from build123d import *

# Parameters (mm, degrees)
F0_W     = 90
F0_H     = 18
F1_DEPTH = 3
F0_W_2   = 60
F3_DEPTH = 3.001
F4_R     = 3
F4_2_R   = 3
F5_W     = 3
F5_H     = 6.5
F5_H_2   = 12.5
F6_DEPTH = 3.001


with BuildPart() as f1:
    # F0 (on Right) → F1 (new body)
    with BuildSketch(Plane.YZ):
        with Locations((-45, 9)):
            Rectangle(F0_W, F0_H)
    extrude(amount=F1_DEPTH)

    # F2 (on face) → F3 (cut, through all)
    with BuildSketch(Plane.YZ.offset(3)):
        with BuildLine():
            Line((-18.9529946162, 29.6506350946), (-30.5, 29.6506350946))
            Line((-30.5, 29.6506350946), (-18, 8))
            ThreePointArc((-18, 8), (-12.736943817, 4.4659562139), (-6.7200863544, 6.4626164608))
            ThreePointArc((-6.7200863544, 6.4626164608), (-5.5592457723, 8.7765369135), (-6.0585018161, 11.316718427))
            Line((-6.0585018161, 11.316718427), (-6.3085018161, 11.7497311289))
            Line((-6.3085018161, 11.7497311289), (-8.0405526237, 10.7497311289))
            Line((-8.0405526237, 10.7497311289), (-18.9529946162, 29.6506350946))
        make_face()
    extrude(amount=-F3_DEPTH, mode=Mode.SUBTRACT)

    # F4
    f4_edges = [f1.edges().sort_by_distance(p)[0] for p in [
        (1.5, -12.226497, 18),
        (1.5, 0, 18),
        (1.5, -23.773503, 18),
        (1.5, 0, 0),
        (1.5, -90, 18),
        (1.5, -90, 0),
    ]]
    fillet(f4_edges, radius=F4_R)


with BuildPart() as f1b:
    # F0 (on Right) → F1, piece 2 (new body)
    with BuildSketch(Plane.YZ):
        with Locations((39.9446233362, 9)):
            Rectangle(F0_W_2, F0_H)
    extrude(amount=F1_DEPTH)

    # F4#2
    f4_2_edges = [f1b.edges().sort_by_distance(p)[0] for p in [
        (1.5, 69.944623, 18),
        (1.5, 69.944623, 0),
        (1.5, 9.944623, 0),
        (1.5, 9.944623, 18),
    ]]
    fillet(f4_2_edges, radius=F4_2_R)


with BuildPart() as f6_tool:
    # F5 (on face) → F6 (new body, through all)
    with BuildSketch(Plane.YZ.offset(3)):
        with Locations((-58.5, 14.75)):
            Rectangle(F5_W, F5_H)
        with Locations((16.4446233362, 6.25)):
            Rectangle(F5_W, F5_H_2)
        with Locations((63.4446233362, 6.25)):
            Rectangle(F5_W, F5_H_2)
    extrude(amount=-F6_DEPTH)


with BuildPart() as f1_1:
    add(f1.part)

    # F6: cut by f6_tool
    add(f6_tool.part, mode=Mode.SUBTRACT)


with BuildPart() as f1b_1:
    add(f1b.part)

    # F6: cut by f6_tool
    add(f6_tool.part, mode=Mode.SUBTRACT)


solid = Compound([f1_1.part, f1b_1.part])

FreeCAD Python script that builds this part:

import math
import FreeCAD as App
import Part
import Sketcher

V = App.Vector
Q = App.Units.Quantity


def edges_at(feature, points):
    """Names of the edges that pass closest to the given points."""
    edges = feature.Shape.Edges
    near = lambda p: min(range(len(edges)), key=lambda i: edges[i].distToShape(Part.Vertex(*p))[0])
    return sorted({f"Edge{near(p) + 1}" for p in points})


def add_polygon(sketch, points):
    """Adds a closed chain of lines whose ends are joined by coincident constraints."""
    first, n = sketch.GeometryCount, len(points)
    for a, b in zip(points, points[1:] + points[:1]):
        sketch.addGeometry(Part.LineSegment(App.Vector(*a, 0), App.Vector(*b, 0)), False)
    for i in range(n):
        sketch.addConstraint(Sketcher.Constraint("Coincident", first + i, 2, first + (i + 1) % n, 1))

doc = App.newDocument("Part")
body = doc.addObject("PartDesign::Body", "Body")

# Sketch on YZ plane
sketch1 = doc.addObject("Sketcher::SketchObject", "Sketch")
body.addObject(sketch1)
sketch1.AttachmentSupport = (doc.YZ_Plane, [""])
sketch1.MapMode = "FlatFace"
add_polygon(sketch1, [(-90, 18), (-90, 0), (0, 0), (0, 18)])  # lines 0-3
sketch1.addConstraint(Sketcher.Constraint("Vertical", 0))
sketch1.addConstraint(Sketcher.Constraint("Horizontal", 1))
sketch1.addConstraint(Sketcher.Constraint("Vertical", 2))
sketch1.addConstraint(Sketcher.Constraint("Horizontal", 3))
sketch1.addConstraint(Sketcher.Constraint("Coincident", 1, 2, -1, 1))
sketch1.addConstraint(Sketcher.Constraint("DistanceX", 1, 1, 1, 2, Q("90 mm")))
sketch1.addConstraint(Sketcher.Constraint("DistanceY", 0, 2, 0, 1, Q("18 mm")))
pad1 = doc.addObject("PartDesign::Pad", "Pad")
body.addObject(pad1)
pad1.Profile = sketch1
pad1.Length = 3

# Sketch on YZ plane
sketch2 = doc.addObject("Sketcher::SketchObject", "Sketch001")
body.addObject(sketch2)
sketch2.AttachmentSupport = (doc.YZ_Plane, [""])
sketch2.MapMode = "FlatFace"
sketch2.AttachmentOffset = App.Placement(V(0, 0, 3), App.Rotation())
sketch2.addGeometry(Part.LineSegment(V(-19, 29.7, 0), V(-30.5, 29.7, 0)), False)
sketch2.addGeometry(Part.LineSegment(V(-30.5, 29.7, 0), V(-18, 8, 0)), False)
sketch2.addGeometry(Part.ArcOfCircle(Part.Circle(V(-11.8, 11.6, 0), V(0, 0, 1), 7.2), math.radians(-150), math.radians(-46)), False)
sketch2.addGeometry(Part.ArcOfCircle(Part.Circle(V(-9.5, 9.3, 0), V(0, 0, 1), 4), math.radians(-46), math.radians(30)), False)
sketch2.addGeometry(Part.LineSegment(V(-6.1, 11.3, 0), V(-6.3, 11.7, 0)), False)
sketch2.addGeometry(Part.LineSegment(V(-6.3, 11.7, 0), V(-8, 10.7, 0)), False)
sketch2.addGeometry(Part.LineSegment(V(-8, 10.7, 0), V(-19, 29.7, 0)), False)
sketch2.addConstraint(Sketcher.Constraint("Coincident", 0, 2, 1, 1))
sketch2.addConstraint(Sketcher.Constraint("Tangent", 1, 2, 2, 1))
sketch2.addConstraint(Sketcher.Constraint("Tangent", 2, 2, 3, 1))
sketch2.addConstraint(Sketcher.Constraint("Tangent", 3, 2, 4, 1))
sketch2.addConstraint(Sketcher.Constraint("Coincident", 4, 2, 5, 1))
sketch2.addConstraint(Sketcher.Constraint("Coincident", 5, 2, 6, 1))
sketch2.addConstraint(Sketcher.Constraint("Coincident", 6, 2, 0, 1))
sketch2.addConstraint(Sketcher.Constraint("Horizontal", 0))
sketch2.addConstraint(Sketcher.Constraint("Parallel", 1, 4))
sketch2.addConstraint(Sketcher.Constraint("Perpendicular", 4, 5))
sketch2.addConstraint(Sketcher.Constraint("Perpendicular", 5, 6))
sketch2.addConstraint(Sketcher.Constraint("Radius", 3, Q("4 mm")))
sketch2.addConstraint(Sketcher.Constraint("Radius", 2, Q("7.2 mm")))
sketch2.addConstraint(Sketcher.Constraint("Angle", 1, Q("-60 deg")))
sketch2.addConstraint(Sketcher.Constraint("Distance", 1, Q("25 mm")))
sketch2.addConstraint(Sketcher.Constraint("Distance", 5, Q("2 mm")))
sketch2.addConstraint(Sketcher.Constraint("DistanceX", 1, 2, -1, 1, Q("18 mm")))
sketch2.addConstraint(Sketcher.Constraint("DistanceY", -1, 1, 1, 2, Q("8 mm")))
sketch2.addConstraint(Sketcher.Constraint("Distance", 4, Q("0.5 mm")))
sketch2.addConstraint(Sketcher.Constraint("DistanceX", 3, 2, -1, 1, Q("6.058502 mm")))
pocket1 = doc.addObject("PartDesign::Pocket", "Pocket")
body.addObject(pocket1)
pocket1.Profile = sketch2
pocket1.Type = "ThroughAll"
doc.recompute()

fillet = doc.addObject("PartDesign::Fillet", "Fillet")
body.addObject(fillet)
fillet.Base = (pocket1, edges_at(pocket1, [
    (1.5, -12.226, 18),
    (1.5, 0, 18),
    (1.5, -23.774, 18),
    (1.5, 0, 0),
    (1.5, -90, 18),
    (1.5, -90, 0),
]))
fillet.Radius = 3
body2 = doc.addObject("PartDesign::Body", "Body001")

# Sketch on YZ plane
sketch3 = doc.addObject("Sketcher::SketchObject", "Sketch002")
body2.addObject(sketch3)
sketch3.AttachmentSupport = (doc.getObject("YZ_Plane001"), [""])
sketch3.MapMode = "FlatFace"
add_polygon(sketch3, [(10, 18), (10, 0), (70, 0), (70, 18)])  # lines 0-3
sketch3.addConstraint(Sketcher.Constraint("Vertical", 0))
sketch3.addConstraint(Sketcher.Constraint("Horizontal", 1))
sketch3.addConstraint(Sketcher.Constraint("Vertical", 2))
sketch3.addConstraint(Sketcher.Constraint("Horizontal", 3))
sketch3.addConstraint(Sketcher.Constraint("PointOnObject", 0, 2, -1))
sketch3.addConstraint(Sketcher.Constraint("DistanceX", 1, 1, 1, 2, Q("60 mm")))
sketch3.addConstraint(Sketcher.Constraint("DistanceY", 0, 2, 0, 1, Q("18 mm")))
sketch3.addConstraint(Sketcher.Constraint("DistanceX", -1, 1, 0, 2, Q("9.944623 mm")))
pad2 = doc.addObject("PartDesign::Pad", "Pad001")
body2.addObject(pad2)
pad2.Profile = sketch3
pad2.Length = 3
doc.recompute()

fillet2 = doc.addObject("PartDesign::Fillet", "Fillet001")
body2.addObject(fillet2)
fillet2.Base = (pad2, edges_at(pad2, [
    (1.5, 69.945, 18),
    (1.5, 69.945, 0),
    (1.5, 9.945, 0),
    (1.5, 9.945, 18),
]))
fillet2.Radius = 3
body3 = doc.addObject("PartDesign::Body", "Body002")
body3.AllowCompound = True

# Sketch on YZ plane
sketch4 = doc.addObject("Sketcher::SketchObject", "Sketch003")
body3.addObject(sketch4)
sketch4.AttachmentSupport = (doc.getObject("YZ_Plane002"), [""])
sketch4.MapMode = "FlatFace"
sketch4.AttachmentOffset = App.Placement(V(0, 0, 3), App.Rotation())
add_polygon(sketch4, [(-60, 18), (-60, 11.5), (-57, 11.5), (-57, 18)])  # lines 0-3
add_polygon(sketch4, [(14.9, 12.5), (14.9, 0), (17.9, 0), (17.9, 12.5)])  # lines 4-7
add_polygon(sketch4, [(61.9, 12.5), (61.9, 0), (64.9, 0), (64.9, 12.5)])  # lines 8-11
sketch4.addConstraint(Sketcher.Constraint("Vertical", 0))
sketch4.addConstraint(Sketcher.Constraint("Horizontal", 1))
sketch4.addConstraint(Sketcher.Constraint("Vertical", 2))
sketch4.addConstraint(Sketcher.Constraint("Horizontal", 3))
sketch4.addConstraint(Sketcher.Constraint("Vertical", 4))
sketch4.addConstraint(Sketcher.Constraint("Horizontal", 5))
sketch4.addConstraint(Sketcher.Constraint("Vertical", 6))
sketch4.addConstraint(Sketcher.Constraint("Horizontal", 7))
sketch4.addConstraint(Sketcher.Constraint("Vertical", 8))
sketch4.addConstraint(Sketcher.Constraint("Horizontal", 9))
sketch4.addConstraint(Sketcher.Constraint("Vertical", 10))
sketch4.addConstraint(Sketcher.Constraint("Horizontal", 11))
sketch4.addConstraint(Sketcher.Constraint("PointOnObject", 4, 2, -1))
sketch4.addConstraint(Sketcher.Constraint("PointOnObject", 8, 2, -1))
sketch4.addConstraint(Sketcher.Constraint("Horizontal", 7, 2, 10, 2))
sketch4.addConstraint(Sketcher.Constraint("Equal", 3, 5))
sketch4.addConstraint(Sketcher.Constraint("Equal", 7, 9))
sketch4.addConstraint(Sketcher.Constraint("DistanceX", 1, 1, 1, 2, Q("3 mm")))
sketch4.addConstraint(Sketcher.Constraint("DistanceY", 0, 2, 0, 1, Q("6.5 mm")))
sketch4.addConstraint(Sketcher.Constraint("DistanceY", 4, 2, 4, 1, Q("12.5 mm")))
sketch4.addConstraint(Sketcher.Constraint("DistanceX", 0, 2, -1, 1, Q("60 mm")))
sketch4.addConstraint(Sketcher.Constraint("DistanceY", -1, 1, 2, 2, Q("18 mm")))
sketch4.addConstraint(Sketcher.Constraint("DistanceX", 5, 2, 8, 2, Q("44 mm")))
sketch4.addConstraint(Sketcher.Constraint("DistanceX", -1, 1, 4, 2, Q("14.944623 mm")))
pad3 = doc.addObject("PartDesign::Pad", "Pad002")
body3.addObject(pad3)
pad3.Profile = sketch4
pad3.Length = 3.001
pad3.Reversed = True
doc.recompute()

body4 = doc.addObject("PartDesign::Body", "Body003")
body4.BaseFeature = body3
boolean = doc.addObject("PartDesign::Boolean", "Boolean")
body.addObject(boolean)
boolean.Type = "Cut"
boolean.addObjects([body4])
doc.recompute()

boolean2 = doc.addObject("PartDesign::Boolean", "Boolean001")
body2.addObject(boolean2)
boolean2.Type = "Cut"
boolean2.addObjects([body3])

doc.recompute()
